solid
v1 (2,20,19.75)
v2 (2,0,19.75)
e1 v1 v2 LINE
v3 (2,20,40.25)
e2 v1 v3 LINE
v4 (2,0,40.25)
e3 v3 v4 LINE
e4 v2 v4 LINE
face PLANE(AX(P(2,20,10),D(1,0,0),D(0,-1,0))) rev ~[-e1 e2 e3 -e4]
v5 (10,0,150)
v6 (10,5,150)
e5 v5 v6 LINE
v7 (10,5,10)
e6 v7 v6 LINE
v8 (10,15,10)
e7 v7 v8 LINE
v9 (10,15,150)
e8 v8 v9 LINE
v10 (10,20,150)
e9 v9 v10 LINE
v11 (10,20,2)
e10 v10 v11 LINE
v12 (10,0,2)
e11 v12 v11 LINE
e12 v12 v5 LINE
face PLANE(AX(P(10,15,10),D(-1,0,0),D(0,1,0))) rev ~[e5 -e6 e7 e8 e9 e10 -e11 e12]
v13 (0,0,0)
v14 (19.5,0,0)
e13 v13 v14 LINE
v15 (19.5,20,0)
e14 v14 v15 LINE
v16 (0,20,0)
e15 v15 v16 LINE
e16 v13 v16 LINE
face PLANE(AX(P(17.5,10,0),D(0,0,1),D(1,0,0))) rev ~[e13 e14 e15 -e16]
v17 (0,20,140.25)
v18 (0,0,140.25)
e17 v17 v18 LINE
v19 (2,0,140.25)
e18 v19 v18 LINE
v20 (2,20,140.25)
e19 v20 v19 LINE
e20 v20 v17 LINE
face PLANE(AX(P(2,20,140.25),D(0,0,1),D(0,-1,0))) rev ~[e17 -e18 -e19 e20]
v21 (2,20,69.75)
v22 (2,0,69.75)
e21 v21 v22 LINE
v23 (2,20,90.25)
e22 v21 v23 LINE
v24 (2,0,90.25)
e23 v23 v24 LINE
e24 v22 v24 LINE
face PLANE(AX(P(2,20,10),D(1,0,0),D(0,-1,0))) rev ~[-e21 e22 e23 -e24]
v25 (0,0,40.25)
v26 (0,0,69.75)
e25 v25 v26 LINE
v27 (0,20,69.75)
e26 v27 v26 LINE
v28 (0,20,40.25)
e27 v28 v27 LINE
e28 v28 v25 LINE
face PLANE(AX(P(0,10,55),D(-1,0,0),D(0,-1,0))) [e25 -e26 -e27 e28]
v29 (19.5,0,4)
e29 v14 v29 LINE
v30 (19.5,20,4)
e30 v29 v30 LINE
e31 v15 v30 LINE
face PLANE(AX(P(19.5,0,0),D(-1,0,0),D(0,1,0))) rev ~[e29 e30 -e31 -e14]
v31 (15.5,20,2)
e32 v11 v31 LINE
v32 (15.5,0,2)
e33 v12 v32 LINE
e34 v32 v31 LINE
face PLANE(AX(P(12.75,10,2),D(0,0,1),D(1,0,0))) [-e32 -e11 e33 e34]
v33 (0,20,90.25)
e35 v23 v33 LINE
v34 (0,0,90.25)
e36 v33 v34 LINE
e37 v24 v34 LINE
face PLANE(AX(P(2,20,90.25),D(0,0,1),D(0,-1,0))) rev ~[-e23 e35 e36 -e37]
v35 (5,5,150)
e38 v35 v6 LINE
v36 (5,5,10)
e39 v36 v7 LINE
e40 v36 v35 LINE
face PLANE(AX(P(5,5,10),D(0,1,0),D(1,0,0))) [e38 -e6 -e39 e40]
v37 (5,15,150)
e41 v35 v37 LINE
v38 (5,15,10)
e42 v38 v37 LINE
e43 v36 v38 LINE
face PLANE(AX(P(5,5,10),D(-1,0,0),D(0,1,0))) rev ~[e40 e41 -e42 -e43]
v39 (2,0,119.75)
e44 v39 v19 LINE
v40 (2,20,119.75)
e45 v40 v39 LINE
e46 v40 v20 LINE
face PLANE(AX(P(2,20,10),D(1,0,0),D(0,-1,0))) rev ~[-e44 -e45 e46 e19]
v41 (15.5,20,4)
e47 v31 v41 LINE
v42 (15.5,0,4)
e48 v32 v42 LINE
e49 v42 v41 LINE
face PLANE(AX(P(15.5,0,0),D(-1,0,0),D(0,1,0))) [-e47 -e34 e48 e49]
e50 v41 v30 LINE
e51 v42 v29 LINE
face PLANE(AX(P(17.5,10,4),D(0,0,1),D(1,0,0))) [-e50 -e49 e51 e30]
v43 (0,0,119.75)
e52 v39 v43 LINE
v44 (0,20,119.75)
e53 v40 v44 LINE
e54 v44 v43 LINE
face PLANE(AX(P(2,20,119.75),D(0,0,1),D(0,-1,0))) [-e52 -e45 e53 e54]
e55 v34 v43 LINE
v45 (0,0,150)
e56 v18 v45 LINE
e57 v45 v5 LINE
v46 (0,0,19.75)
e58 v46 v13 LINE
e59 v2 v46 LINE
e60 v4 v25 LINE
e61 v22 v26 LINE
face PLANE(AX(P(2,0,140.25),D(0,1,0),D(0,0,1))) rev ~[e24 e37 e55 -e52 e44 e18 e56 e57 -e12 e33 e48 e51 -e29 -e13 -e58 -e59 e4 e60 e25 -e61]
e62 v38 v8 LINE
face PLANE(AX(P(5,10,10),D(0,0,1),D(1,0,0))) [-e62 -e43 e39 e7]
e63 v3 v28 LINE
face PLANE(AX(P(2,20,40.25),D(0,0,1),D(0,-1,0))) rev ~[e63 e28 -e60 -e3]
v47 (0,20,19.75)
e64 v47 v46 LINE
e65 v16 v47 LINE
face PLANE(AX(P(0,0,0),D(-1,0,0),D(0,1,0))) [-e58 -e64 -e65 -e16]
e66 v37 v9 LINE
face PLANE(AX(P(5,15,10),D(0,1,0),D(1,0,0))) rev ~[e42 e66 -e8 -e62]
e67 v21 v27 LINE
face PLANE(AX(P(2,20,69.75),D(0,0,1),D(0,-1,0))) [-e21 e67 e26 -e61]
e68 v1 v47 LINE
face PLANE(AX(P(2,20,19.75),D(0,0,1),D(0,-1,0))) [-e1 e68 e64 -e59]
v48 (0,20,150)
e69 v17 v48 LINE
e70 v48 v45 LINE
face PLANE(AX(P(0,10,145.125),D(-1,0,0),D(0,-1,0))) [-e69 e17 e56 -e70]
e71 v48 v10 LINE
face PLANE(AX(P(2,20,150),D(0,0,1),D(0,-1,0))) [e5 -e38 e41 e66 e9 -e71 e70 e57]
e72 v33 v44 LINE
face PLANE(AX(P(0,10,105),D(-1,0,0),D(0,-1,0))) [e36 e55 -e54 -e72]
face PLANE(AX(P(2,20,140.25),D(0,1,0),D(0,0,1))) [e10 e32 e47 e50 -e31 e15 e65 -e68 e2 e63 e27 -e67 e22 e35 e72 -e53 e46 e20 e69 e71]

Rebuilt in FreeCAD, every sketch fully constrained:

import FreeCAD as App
import Part
import Sketcher

V = App.Vector

doc = App.newDocument("Part")
body = doc.addObject("PartDesign::Body", "Body")

sketch1 = body.newObject("Sketcher::SketchObject", "Sketch")
sketch1.AttachmentSupport = (doc.getObject("XY_Plane"), [""])
sketch1.MapMode = "FlatFace"
sketch1.addGeometry([
    Part.LineSegment(V(0, 20, 0), V(0, 0, 0)),
    Part.LineSegment(V(0, 0, 0), V(10, 0, 0)),
    Part.LineSegment(V(10, 0, 0), V(10, 20, 0)),
    Part.LineSegment(V(10, 20, 0), V(0, 20, 0)),
], False)
sketch1.addConstraint([
    Sketcher.Constraint("Coincident", 0, 2, 1, 1),
    Sketcher.Constraint("Coincident", 1, 2, 2, 1),
    Sketcher.Constraint("Coincident", 2, 2, 3, 1),
    Sketcher.Constraint("Coincident", 3, 2, 0, 1),
    Sketcher.Constraint("Vertical", 0),
    Sketcher.Constraint("Horizontal", 1),
    Sketcher.Constraint("Vertical", 2),
    Sketcher.Constraint("Horizontal", 3),
    Sketcher.Constraint("Coincident", 0, 2, -1, 1),
    Sketcher.Constraint("DistanceX", 1, 1, 1, 2, 10.0),
    Sketcher.Constraint("DistanceY", 0, 2, 0, 1, 20.0),
])
pad1 = body.newObject("PartDesign::Pad", "Pad")
pad1.Profile = sketch1
pad1.Length = 10

sketch2 = body.newObject("Sketcher::SketchObject", "Sketch001")
sketch2.AttachmentSupport = (doc.getObject("XY_Plane"), [""])
sketch2.MapMode = "FlatFace"
sketch2.addGeometry([
    Part.LineSegment(V(10, 20, 0), V(10, 0, 0)),
    Part.LineSegment(V(10, 0, 0), V(16, 0, 0)),
    Part.LineSegment(V(16, 0, 0), V(16, 20, 0)),
    Part.LineSegment(V(16, 20, 0), V(10, 20, 0)),
], False)
sketch2.addConstraint([
    Sketcher.Constraint("Coincident", 0, 2, 1, 1),
    Sketcher.Constraint("Coincident", 1, 2, 2, 1),
    Sketcher.Constraint("Coincident", 2, 2, 3, 1),
    Sketcher.Constraint("Coincident", 3, 2, 0, 1),
    Sketcher.Constraint("Vertical", 0),
    Sketcher.Constraint("Horizontal", 1),
    Sketcher.Constraint("Vertical", 2),
    Sketcher.Constraint("Horizontal", 3),
    Sketcher.Constraint("PointOnObject", 0, 2, -1),
    Sketcher.Constraint("DistanceY", 0, 2, 0, 1, 20.0),
    Sketcher.Constraint("DistanceX", 1, 1, 1, 2, 5.5),
    Sketcher.Constraint("DistanceX", -1, 1, 0, 2, 10.0),
])
pad2 = body.newObject("PartDesign::Pad", "Pad001")
pad2.Profile = sketch2
pad2.Length = 2

sketch3 = body.newObject("Sketcher::SketchObject", "Sketch002")
sketch3.AttachmentSupport = (doc.getObject("XY_Plane"), [""])
sketch3.MapMode = "FlatFace"
sketch3.addGeometry([
    Part.LineSegment(V(15.5, 20, 0), V(15.5, 0, 0)),
    Part.LineSegment(V(15.5, 0, 0), V(19.5, 0, 0)),
    Part.LineSegment(V(19.5, 0, 0), V(19.5, 20, 0)),
    Part.LineSegment(V(19.5, 20, 0), V(15.5, 20, 0)),
], False)
sketch3.addConstraint([
    Sketcher.Constraint("Coincident", 0, 2, 1, 1),
    Sketcher.Constraint("Coincident", 1, 2, 2, 1),
    Sketcher.Constraint("Coincident", 2, 2, 3, 1),
    Sketcher.Constraint("Coincident", 3, 2, 0, 1),
    Sketcher.Constraint("Vertical", 0),
    Sketcher.Constraint("Horizontal", 1),
    Sketcher.Constraint("Vertical", 2),
    Sketcher.Constraint("Horizontal", 3),
    Sketcher.Constraint("PointOnObject", 0, 2, -1),
    Sketcher.Constraint("DistanceX", 1, 1, 1, 2, 4.0),
    Sketcher.Constraint("DistanceY", 0, 2, 0, 1, 20.0),
    Sketcher.Constraint("DistanceX", -1, 1, 0, 2, 15.5),
])
pad3 = body.newObject("PartDesign::Pad", "Pad002")
pad3.Profile = sketch3
pad3.Length = 4

sketch4 = body.newObject("Sketcher::SketchObject", "Sketch003")
sketch4.AttachmentSupport = (doc.getObject("XY_Plane"), [""])
sketch4.MapMode = "FlatFace"
sketch4.AttachmentOffset = App.Placement(V(0, 0, 10), App.Rotation())
sketch4.addGeometry([
    Part.LineSegment(V(2, 20, 0), V(2, 0, 0)),
    Part.LineSegment(V(2, 0, 0), V(10, 0, 0)),
    Part.LineSegment(V(10, 0, 0), V(10, 5, 0)),
    Part.LineSegment(V(10, 5, 0), V(5, 5, 0)),
    Part.LineSegment(V(5, 5, 0), V(5, 15, 0)),
    Part.LineSegment(V(5, 15, 0), V(10, 15, 0)),
    Part.LineSegment(V(10, 15, 0), V(10, 20, 0)),
    Part.LineSegment(V(10, 20, 0), V(2, 20, 0)),
], False)
sketch4.addConstraint([
    Sketcher.Constraint("Coincident", 0, 2, 1, 1),
    Sketcher.Constraint("Coincident", 1, 2, 2, 1),
    Sketcher.Constraint("Coincident", 2, 2, 3, 1),
    Sketcher.Constraint("Coincident", 3, 2, 4, 1),
    Sketcher.Constraint("Coincident", 4, 2, 5, 1),
    Sketcher.Constraint("Coincident", 5, 2, 6, 1),
    Sketcher.Constraint("Coincident", 6, 2, 7, 1),
    Sketcher.Constraint("Coincident", 7, 2, 0, 1),
    Sketcher.Constraint("Vertical", 0),
    Sketcher.Constraint("Horizontal", 1),
    Sketcher.Constraint("Vertical", 2),
    Sketcher.Constraint("Horizontal", 3),
    Sketcher.Constraint("Vertical", 4),
    Sketcher.Constraint("Horizontal", 5),
    Sketcher.Constraint("Vertical", 6),
    Sketcher.Constraint("Horizontal", 7),
    Sketcher.Constraint("PointOnObject", 0, 2, -1),
    Sketcher.Constraint("Vertical", 2, 2, 5, 2),
    Sketcher.Constraint("Equal", 5, 2),
    Sketcher.Constraint("Equal", 2, 6),
    Sketcher.Constraint("DistanceX", 1, 1, 1, 2, 8.0),
    Sketcher.Constraint("DistanceX", 3, 2, 3, 1, 5.0),
    Sketcher.Constraint("DistanceY", 0, 2, 0, 1, 20.0),
    Sketcher.Constraint("DistanceX", -1, 1, 0, 2, 2.0),
])
pad4 = body.newObject("PartDesign::Pad", "Pad003")
pad4.Profile = sketch4
pad4.Length = 140

sketch5 = body.newObject("Sketcher::SketchObject", "Sketch004")
sketch5.AttachmentSupport = (doc.getObject("YZ_Plane"), [""])
sketch5.MapMode = "FlatFace"
sketch5.AttachmentOffset = App.Placement(V(0, 0, 2), App.Rotation())
sketch5.addGeometry([
    Part.LineSegment(V(20, 150, 0), V(20, 140, 0)),
    Part.LineSegment(V(20, 140, 0), V(0, 140, 0)),
    Part.LineSegment(V(0, 140, 0), V(0, 150, 0)),
    Part.LineSegment(V(0, 150, 0), V(20, 150, 0)),
    Part.LineSegment(V(20, 120, 0), V(20, 90, 0)),
    Part.LineSegment(V(20, 90, 0), V(0, 90, 0)),
    Part.LineSegment(V(0, 90, 0), V(0, 120, 0)),
    Part.LineSegment(V(0, 120, 0), V(20, 120, 0)),
    Part.LineSegment(V(20, 70, 0), V(20, 40, 0)),
    Part.LineSegment(V(20, 40, 0), V(0, 40, 0)),
    Part.LineSegment(V(0, 40, 0), V(0, 70, 0)),
    Part.LineSegment(V(0, 70, 0), V(20, 70, 0)),
    Part.LineSegment(V(20, 20, 0), V(20, 10, 0)),
    Part.LineSegment(V(20, 10, 0), V(0, 10, 0)),
    Part.LineSegment(V(0, 10, 0), V(0, 20, 0)),
    Part.LineSegment(V(0, 20, 0), V(20, 20, 0)),
], False)
sketch5.addConstraint([
    Sketcher.Constraint("Coincident", 0, 2, 1, 1),
    Sketcher.Constraint("Coincident", 1, 2, 2, 1),
    Sketcher.Constraint("Coincident", 2, 2, 3, 1),
    Sketcher.Constraint("Coincident", 3, 2, 0, 1),
    Sketcher.Constraint("Coincident", 4, 2, 5, 1),
    Sketcher.Constraint("Coincident", 5, 2, 6, 1),
    Sketcher.Constraint("Coincident", 6, 2, 7, 1),
    Sketcher.Constraint("Coincident", 7, 2, 4, 1),
    Sketcher.Constraint("Coincident", 8, 2, 9, 1),
    Sketcher.Constraint("Coincident", 9, 2, 10, 1),
    Sketcher.Constraint("Coincident", 10, 2, 11, 1),
    Sketcher.Constraint("Coincident", 11, 2, 8, 1),
    Sketcher.Constraint("Coincident", 12, 2, 13, 1),
    Sketcher.Constraint("Coincident", 13, 2, 14, 1),
    Sketcher.Constraint("Coincident", 14, 2, 15, 1),
    Sketcher.Constraint("Coincident", 15, 2, 12, 1),
    Sketcher.Constraint("Vertical", 0),
    Sketcher.Constraint("Horizontal", 1),
    Sketcher.Constraint("Vertical", 2),
    Sketcher.Constraint("Horizontal", 3),
    Sketcher.Constraint("Vertical", 4),
    Sketcher.Constraint("Horizontal", 5),
    Sketcher.Constraint("Vertical", 6),
    Sketcher.Constraint("Horizontal", 7),
    Sketcher.Constraint("Vertical", 8),
    Sketcher.Constraint("Horizontal", 9),
    Sketcher.Constraint("Vertical", 10),
    Sketcher.Constraint("Horizontal", 11),
    Sketcher.Constraint("Vertical", 12),
    Sketcher.Constraint("Horizontal", 13),
    Sketcher.Constraint("Vertical", 14),
    Sketcher.Constraint("Horizontal", 15),
    Sketcher.Constraint("PointOnObject", 1, 2, -2),
    Sketcher.Constraint("PointOnObject", 5, 2, -2),
    Sketcher.Constraint("PointOnObject", 9, 2, -2),
    Sketcher.Constraint("PointOnObject", 13, 2, -2),
    Sketcher.Constraint("Vertical", 3, 2, 4, 2),
    Sketcher.Constraint("Vertical", 7, 2, 8, 2),
    Sketcher.Constraint("Vertical", 11, 2, 12, 2),
    Sketcher.Constraint("Equal", 6, 8),
    Sketcher.Constraint("Equal", 2, 12),
    Sketcher.Constraint("DistanceX", 1, 2, 1, 1, 20.0),
    Sketcher.Constraint("DistanceY", 4, 2, 4, 1, 29.5),
    Sketcher.Constraint("DistanceY", -1, 1, 2, 2, 150.0),
    Sketcher.Constraint("DistanceY", -1, 1, 12, 2, 10.0),
    Sketcher.Constraint("DistanceY", 4, 2, 0, 2, 50.0),
    Sketcher.Constraint("DistanceY", 8, 2, 4, 2, 50.0),
    Sketcher.Constraint("DistanceY", 14, 2, 10, 2, 50.0),
])
pad5 = body.newObject("PartDesign::Pad", "Pad004")
pad5.Profile = sketch5
pad5.Length = 2
pad5.Reversed = True

doc.recompute()
